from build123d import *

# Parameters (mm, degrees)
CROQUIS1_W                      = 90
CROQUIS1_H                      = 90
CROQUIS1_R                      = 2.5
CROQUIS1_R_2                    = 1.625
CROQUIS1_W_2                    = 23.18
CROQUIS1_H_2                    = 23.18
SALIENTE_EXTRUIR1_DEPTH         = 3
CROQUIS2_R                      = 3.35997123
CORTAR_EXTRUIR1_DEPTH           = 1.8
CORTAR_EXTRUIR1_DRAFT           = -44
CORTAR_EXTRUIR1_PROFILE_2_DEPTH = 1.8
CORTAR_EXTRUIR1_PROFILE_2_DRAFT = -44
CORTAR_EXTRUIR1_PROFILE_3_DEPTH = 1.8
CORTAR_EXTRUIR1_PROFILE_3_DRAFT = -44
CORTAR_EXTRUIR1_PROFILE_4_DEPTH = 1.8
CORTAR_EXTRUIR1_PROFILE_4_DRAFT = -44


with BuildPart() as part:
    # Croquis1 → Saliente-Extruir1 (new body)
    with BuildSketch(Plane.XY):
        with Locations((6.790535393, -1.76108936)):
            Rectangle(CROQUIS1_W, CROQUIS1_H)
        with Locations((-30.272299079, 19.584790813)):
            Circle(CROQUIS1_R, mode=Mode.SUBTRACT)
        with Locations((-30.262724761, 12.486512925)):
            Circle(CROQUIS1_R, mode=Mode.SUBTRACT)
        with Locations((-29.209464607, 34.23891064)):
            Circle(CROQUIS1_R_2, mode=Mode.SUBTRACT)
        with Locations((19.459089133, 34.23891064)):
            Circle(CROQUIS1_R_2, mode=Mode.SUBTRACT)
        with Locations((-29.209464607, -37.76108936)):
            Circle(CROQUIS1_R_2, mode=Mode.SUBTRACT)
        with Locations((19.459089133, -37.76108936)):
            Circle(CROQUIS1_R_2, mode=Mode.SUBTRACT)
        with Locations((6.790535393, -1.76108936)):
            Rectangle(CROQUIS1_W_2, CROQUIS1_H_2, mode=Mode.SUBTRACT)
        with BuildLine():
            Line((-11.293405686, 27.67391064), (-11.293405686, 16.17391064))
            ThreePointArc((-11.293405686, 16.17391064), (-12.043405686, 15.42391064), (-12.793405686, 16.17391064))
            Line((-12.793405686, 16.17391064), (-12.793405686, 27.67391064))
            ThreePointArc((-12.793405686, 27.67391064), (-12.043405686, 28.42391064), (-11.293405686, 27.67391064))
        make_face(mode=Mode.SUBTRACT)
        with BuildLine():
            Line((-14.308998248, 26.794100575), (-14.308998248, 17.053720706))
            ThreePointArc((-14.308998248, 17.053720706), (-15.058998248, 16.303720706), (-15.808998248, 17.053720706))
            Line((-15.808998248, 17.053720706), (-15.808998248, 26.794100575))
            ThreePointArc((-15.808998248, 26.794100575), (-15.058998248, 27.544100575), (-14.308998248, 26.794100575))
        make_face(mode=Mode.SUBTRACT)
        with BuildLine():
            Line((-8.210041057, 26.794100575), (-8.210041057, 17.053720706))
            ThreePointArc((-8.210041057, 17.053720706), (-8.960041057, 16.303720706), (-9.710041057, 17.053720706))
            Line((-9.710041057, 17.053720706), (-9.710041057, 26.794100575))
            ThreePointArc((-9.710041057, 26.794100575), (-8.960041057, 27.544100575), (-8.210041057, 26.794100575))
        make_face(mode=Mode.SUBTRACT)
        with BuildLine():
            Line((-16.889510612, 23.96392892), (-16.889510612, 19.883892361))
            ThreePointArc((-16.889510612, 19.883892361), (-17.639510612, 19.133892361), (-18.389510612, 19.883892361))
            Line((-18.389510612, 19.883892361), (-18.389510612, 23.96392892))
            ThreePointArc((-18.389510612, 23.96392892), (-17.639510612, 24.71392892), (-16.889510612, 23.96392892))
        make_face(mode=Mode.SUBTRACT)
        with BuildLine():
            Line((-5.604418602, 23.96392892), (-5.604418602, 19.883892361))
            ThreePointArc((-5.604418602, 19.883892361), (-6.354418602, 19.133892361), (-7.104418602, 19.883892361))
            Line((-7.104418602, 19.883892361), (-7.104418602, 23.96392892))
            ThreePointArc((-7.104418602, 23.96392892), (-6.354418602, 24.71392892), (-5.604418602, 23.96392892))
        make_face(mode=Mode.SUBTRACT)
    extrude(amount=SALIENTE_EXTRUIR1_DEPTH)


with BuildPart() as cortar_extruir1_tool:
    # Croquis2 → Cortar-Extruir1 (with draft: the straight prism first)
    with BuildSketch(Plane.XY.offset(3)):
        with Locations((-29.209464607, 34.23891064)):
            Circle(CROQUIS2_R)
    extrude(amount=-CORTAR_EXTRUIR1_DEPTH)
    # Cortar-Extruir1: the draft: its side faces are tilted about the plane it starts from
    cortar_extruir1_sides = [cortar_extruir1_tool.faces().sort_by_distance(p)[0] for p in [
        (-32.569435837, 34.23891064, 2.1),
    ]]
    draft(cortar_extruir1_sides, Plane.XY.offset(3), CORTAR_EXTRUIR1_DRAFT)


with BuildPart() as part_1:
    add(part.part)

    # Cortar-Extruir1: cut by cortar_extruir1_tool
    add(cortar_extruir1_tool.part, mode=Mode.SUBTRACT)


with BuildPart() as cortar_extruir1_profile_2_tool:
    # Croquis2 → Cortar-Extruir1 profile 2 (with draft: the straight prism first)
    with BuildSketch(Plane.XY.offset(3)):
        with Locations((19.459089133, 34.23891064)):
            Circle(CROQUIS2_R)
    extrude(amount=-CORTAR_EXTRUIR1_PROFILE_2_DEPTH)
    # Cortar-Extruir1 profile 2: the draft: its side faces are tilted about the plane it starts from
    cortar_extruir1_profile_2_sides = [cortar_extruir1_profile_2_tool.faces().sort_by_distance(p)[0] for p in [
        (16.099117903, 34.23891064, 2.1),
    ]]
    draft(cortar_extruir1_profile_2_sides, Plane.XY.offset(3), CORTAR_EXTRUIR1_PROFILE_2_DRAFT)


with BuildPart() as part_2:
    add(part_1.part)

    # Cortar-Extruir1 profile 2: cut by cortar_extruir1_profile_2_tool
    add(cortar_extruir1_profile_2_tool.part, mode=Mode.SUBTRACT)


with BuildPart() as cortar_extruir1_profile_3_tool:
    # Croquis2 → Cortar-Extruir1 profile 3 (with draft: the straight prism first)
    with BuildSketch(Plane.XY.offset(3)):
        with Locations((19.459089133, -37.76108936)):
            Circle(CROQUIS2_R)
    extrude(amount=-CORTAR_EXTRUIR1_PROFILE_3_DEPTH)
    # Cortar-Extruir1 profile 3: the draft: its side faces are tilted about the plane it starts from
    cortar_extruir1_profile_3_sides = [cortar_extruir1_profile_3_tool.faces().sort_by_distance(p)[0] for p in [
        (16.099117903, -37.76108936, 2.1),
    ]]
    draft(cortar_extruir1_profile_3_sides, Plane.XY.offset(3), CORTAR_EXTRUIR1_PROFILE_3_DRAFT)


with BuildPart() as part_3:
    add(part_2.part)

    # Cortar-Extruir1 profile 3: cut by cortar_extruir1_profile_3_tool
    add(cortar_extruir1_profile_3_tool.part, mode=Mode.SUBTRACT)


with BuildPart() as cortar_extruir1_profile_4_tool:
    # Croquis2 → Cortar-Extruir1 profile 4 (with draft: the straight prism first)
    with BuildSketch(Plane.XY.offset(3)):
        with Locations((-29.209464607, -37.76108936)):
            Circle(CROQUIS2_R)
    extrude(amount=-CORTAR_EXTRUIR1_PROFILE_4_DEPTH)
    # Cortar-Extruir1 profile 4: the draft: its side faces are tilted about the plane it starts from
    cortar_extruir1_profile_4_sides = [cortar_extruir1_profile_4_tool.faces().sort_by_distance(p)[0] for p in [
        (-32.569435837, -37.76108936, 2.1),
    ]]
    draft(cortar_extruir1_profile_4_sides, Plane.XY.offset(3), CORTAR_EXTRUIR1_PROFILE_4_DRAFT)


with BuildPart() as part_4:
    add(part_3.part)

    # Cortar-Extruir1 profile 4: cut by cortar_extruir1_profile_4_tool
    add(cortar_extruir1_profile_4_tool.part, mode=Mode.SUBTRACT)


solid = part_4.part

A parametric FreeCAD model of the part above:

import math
import FreeCAD as App
import Part
import Sketcher
Q = App.Units.Quantity


def faces_at(feature, points):
    """Names of the faces that lie closest to the given points."""
    faces = feature.Shape.Faces
    near = lambda p: min(range(len(faces)), key=lambda i: faces[i].distToShape(Part.Vertex(*p))[0])
    return sorted({f"Face{near(p) + 1}" for p in points})


def add_polygon(sketch, points):
    """Adds a closed chain of lines whose ends are joined by coincident constraints."""
    first, n = sketch.GeometryCount, len(points)
    for a, b in zip(points, points[1:] + points[:1]):
        sketch.addGeometry(Part.LineSegment(App.Vector(*a, 0), App.Vector(*b, 0)), False)
    for i in range(n):
        sketch.addConstraint(Sketcher.Constraint("Coincident", first + i, 2, first + (i + 1) % n, 1))

doc = App.newDocument("Part")
body = doc.addObject("PartDesign::Body", "Body")

sketch1 = body.newObject("Sketcher::SketchObject", "Sketch")
sketch1.AttachmentSupport = (doc.getObject("XY_Plane"), [""])
sketch1.MapMode = "FlatFace"
add_polygon(sketch1, [(-38.2, 43.2), (-38.2, -46.8), (51.8, -46.8), (51.8, 43.2)])
sketch1.addGeometry(Part.Circle(App.Vector(-29.2, -37.8, 0), App.Vector(0, 0, 1), 1.6), False)
sketch1.addGeometry(Part.Circle(App.Vector(19.5, -37.8, 0), App.Vector(0, 0, 1), 1.6), False)
sketch1.addGeometry(Part.Circle(App.Vector(-30.3, 12.5, 0), App.Vector(0, 0, 1), 2.5), False)
sketch1.addGeometry(Part.Circle(App.Vector(-30.3, 19.6, 0), App.Vector(0, 0, 1), 2.5), False)
sketch1.addGeometry(Part.Circle(App.Vector(-29.2, 34.2, 0), App.Vector(0, 0, 1), 1.6), False)
sketch1.addGeometry(Part.ArcOfCircle(Part.Circle(App.Vector(-17.6, 24, 0), App.Vector(0, 0, 1), 0.8), math.radians(0), math.radians(180)), False)
sketch1.addGeometry(Part.LineSegment(App.Vector(-16.9, 24, 0), App.Vector(-16.9, 19.9, 0)), False)
sketch1.addGeometry(Part.ArcOfCircle(Part.Circle(App.Vector(-17.6, 19.9, 0), App.Vector(0, 0, 1), 0.8), math.radians(180), math.radians(360)), False)
sketch1.addGeometry(Part.LineSegment(App.Vector(-18.4, 19.9, 0), App.Vector(-18.4, 24, 0)), False)
sketch1.addGeometry(Part.ArcOfCircle(Part.Circle(App.Vector(-15.1, 26.8, 0), App.Vector(0, 0, 1), 0.8), math.radians(0), math.radians(180)), False)
sketch1.addGeometry(Part.LineSegment(App.Vector(-14.3, 26.8, 0), App.Vector(-14.3, 17.1, 0)), False)
sketch1.addGeometry(Part.ArcOfCircle(Part.Circle(App.Vector(-15.1, 17.1, 0), App.Vector(0, 0, 1), 0.8), math.radians(180), math.radians(360)), False)
sketch1.addGeometry(Part.LineSegment(App.Vector(-15.8, 17.1, 0), App.Vector(-15.8, 26.8, 0)), False)
sketch1.addGeometry(Part.ArcOfCircle(Part.Circle(App.Vector(-12, 27.7, 0), App.Vector(0, 0, 1), 0.8), math.radians(0), math.radians(180)), False)
sketch1.addGeometry(Part.LineSegment(App.Vector(-11.3, 27.7, 0), App.Vector(-11.3, 16.2, 0)), False)
sketch1.addGeometry(Part.ArcOfCircle(Part.Circle(App.Vector(-12, 16.2, 0), App.Vector(0, 0, 1), 0.8), math.radians(180), math.radians(360)), False)
sketch1.addGeometry(Part.LineSegment(App.Vector(-12.8, 16.2, 0), App.Vector(-12.8, 27.7, 0)), False)
sketch1.addGeometry(Part.ArcOfCircle(Part.Circle(App.Vector(-9, 26.8, 0), App.Vector(0, 0, 1), 0.8), math.radians(0), math.radians(180)), False)
sketch1.addGeometry(Part.LineSegment(App.Vector(-8.2, 26.8, 0), App.Vector(-8.2, 17.1, 0)), False)
sketch1.addGeometry(Part.ArcOfCircle(Part.Circle(App.Vector(-9, 17.1, 0), App.Vector(0, 0, 1), 0.8), math.radians(180), math.radians(360)), False)
sketch1.addGeometry(Part.LineSegment(App.Vector(-9.7, 17.1, 0), App.Vector(-9.7, 26.8, 0)), False)
sketch1.addGeometry(Part.ArcOfCircle(Part.Circle(App.Vector(-6.4, 24, 0), App.Vector(0, 0, 1), 0.8), math.radians(0), math.radians(180)), False)
sketch1.addGeometry(Part.LineSegment(App.Vector(-5.6, 24, 0), App.Vector(-5.6, 19.9, 0)), False)
sketch1.addGeometry(Part.ArcOfCircle(Part.Circle(App.Vector(-6.4, 19.9, 0), App.Vector(0, 0, 1), 0.8), math.radians(180), math.radians(360)), False)
sketch1.addGeometry(Part.LineSegment(App.Vector(-7.1, 19.9, 0), App.Vector(-7.1, 24, 0)), False)
add_polygon(sketch1, [(18.4, -13.4), (-4.8, -13.4), (-4.8, 9.8), (18.4, 9.8)])
sketch1.addGeometry(Part.Circle(App.Vector(19.5, 34.2, 0), App.Vector(0, 0, 1), 1.6), False)
sketch1.addConstraint([
    Sketcher.Constraint("Tangent", 9, 1, 10, 1),
    Sketcher.Constraint("Tangent", 10, 2, 11, 2),
    Sketcher.Constraint("Tangent", 11, 1, 12, 1),
    Sketcher.Constraint("Tangent", 12, 2, 9, 2),
    Sketcher.Constraint("Tangent", 13, 1, 14, 1),
    Sketcher.Constraint("Tangent", 14, 2, 15, 2),
    Sketcher.Constraint("Tangent", 15, 1, 16, 1),
    Sketcher.Constraint("Tangent", 16, 2, 13, 2),
    Sketcher.Constraint("Tangent", 17, 1, 18, 1),
    Sketcher.Constraint("Tangent", 18, 2, 19, 2),
    Sketcher.Constraint("Tangent", 19, 1, 20, 1),
    Sketcher.Constraint("Tangent", 20, 2, 17, 2),
    Sketcher.Constraint("Tangent", 21, 1, 22, 1),
    Sketcher.Constraint("Tangent", 22, 2, 23, 2),
    Sketcher.Constraint("Tangent", 23, 1, 24, 1),
    Sketcher.Constraint("Tangent", 24, 2, 21, 2),
    Sketcher.Constraint("Tangent", 25, 1, 26, 1),
    Sketcher.Constraint("Tangent", 26, 2, 27, 2),
    Sketcher.Constraint("Tangent", 27, 1, 28, 1),
    Sketcher.Constraint("Tangent", 28, 2, 25, 2),
    Sketcher.Constraint("Vertical", 0),
    Sketcher.Constraint("Horizontal", 1),
    Sketcher.Constraint("Vertical", 2),
    Sketcher.Constraint("Horizontal", 3),
    Sketcher.Constraint("Vertical", 10),
    Sketcher.Constraint("Vertical", 12),
    Sketcher.Constraint("Vertical", 14),
    Sketcher.Constraint("Vertical", 16),
    Sketcher.Constraint("Vertical", 18),
    Sketcher.Constraint("Vertical", 20),
    Sketcher.Constraint("Vertical", 22),
    Sketcher.Constraint("Vertical", 24),
    Sketcher.Constraint("Vertical", 26),
    Sketcher.Constraint("Vertical", 28),
    Sketcher.Constraint("Horizontal", 29),
    Sketcher.Constraint("Vertical", 30),
    Sketcher.Constraint("Horizontal", 31),
    Sketcher.Constraint("Vertical", 32),
    Sketcher.Constraint("Equal", 4, 5),
    Sketcher.Constraint("Equal", 6, 7),
    Sketcher.Constraint("Equal", 5, 8),
    Sketcher.Constraint("Equal", 11, 13),
    Sketcher.Constraint("Equal", 15, 17),
    Sketcher.Constraint("Equal", 19, 21),
    Sketcher.Constraint("Equal", 23, 25),
    Sketcher.Constraint("Equal", 8, 33),
    Sketcher.Constraint("Horizontal", 4, 3, 5, 3),
    Sketcher.Constraint("Horizontal", 13, 3, 21, 3),
    Sketcher.Constraint("Horizontal", 15, 3, 23, 3),
    Sketcher.Constraint("Horizontal", 9, 3, 25, 3),
    Sketcher.Constraint("Horizontal", 11, 3, 27, 3),
    Sketcher.Constraint("Horizontal", 8, 3, 33, 3),
    Sketcher.Constraint("Vertical", 4, 3, 8, 3),
    Sketcher.Constraint("Vertical", 5, 3, 33, 3),
    Sketcher.Constraint("Equal", 3, 0),
    Sketcher.Constraint("Equal", 31, 30),
    Sketcher.Constraint("Diameter", 6, Q("5 mm")),
    Sketcher.Constraint("Diameter", 4, Q("3.25 mm")),
    Sketcher.Constraint("DistanceX", 1, 1, 1, 2, Q("90 mm")),
    Sketcher.Constraint("Radius", 9, Q("0.75 mm")),
    Sketcher.Constraint("DistanceY", 18, 2, 18, 1, Q("11.5 mm")),
    Sketcher.Constraint("DistanceY", 4, 3, 8, 3, Q("72 mm")),
    Sketcher.Constraint("DistanceX", 0, 2, 4, 3, Q("9 mm")),
    Sketcher.Constraint("DistanceY", 0, 2, 4, 3, Q("9 mm")),
    Sketcher.Constraint("DistanceX", 29, 2, 29, 1, Q("23.18 mm")),
    Sketcher.Constraint("DistanceY", 31, 2, 33, 3, Q("24.41 mm")),
    Sketcher.Constraint("DistanceX", 13, 3, -1, 1, Q("15.058998 mm")),
    Sketcher.Constraint("DistanceY", 17, 3, 8, 3, Q("6.565 mm")),
    Sketcher.Constraint("DistanceY", 14, 2, 14, 1, Q("9.74038 mm")),
    Sketcher.Constraint("DistanceX", 7, 3, -1, 1, Q("30.272299 mm")),
    Sketcher.Constraint("DistanceY", -1, 1, 13, 3, Q("26.794101 mm")),
    Sketcher.Constraint("DistanceX", 9, 3, 5, 3, Q("37.0986 mm")),
    Sketcher.Constraint("DistanceY", 7, 3, 11, 3, Q("0.299102 mm")),
    Sketcher.Constraint("DistanceY", 10, 2, 10, 1, Q("4.080037 mm")),
    Sketcher.Constraint("DistanceY", 4, 3, -1, 1, Q("37.761089 mm")),
    Sketcher.Constraint("DistanceX", -1, 1, 5, 3, Q("19.459089 mm")),
    Sketcher.Constraint("DistanceY", -1, 1, 7, 3, Q("19.584791 mm")),
    Sketcher.Constraint("DistanceX", 21, 3, -1, 1, Q("8.960041 mm")),
    Sketcher.Constraint("DistanceX", 25, 3, -1, 1, Q("6.354419 mm")),
    Sketcher.Constraint("DistanceX", 6, 3, 4, 3, Q("1.05326 mm")),
    Sketcher.Constraint("DistanceY", 6, 3, 11, 3, Q("7.397379 mm")),
    Sketcher.Constraint("DistanceX", 8, 3, 17, 3, Q("17.166059 mm")),
    Sketcher.Constraint("DistanceX", 18, 2, 29, 2, Q("6.493941 mm")),
    Sketcher.Constraint("DistanceX", 4, 3, -1, 1, Q("29.209465 mm")),
])
pad1 = body.newObject("PartDesign::Pad", "Pad")
pad1.Profile = sketch1
pad1.Length = 3
body2 = doc.addObject("PartDesign::Body", "Body001")

sketch2 = body2.newObject("Sketcher::SketchObject", "Sketch001")
sketch2.AttachmentSupport = (doc.getObject("XY_Plane001"), [""])
sketch2.MapMode = "FlatFace"
sketch2.AttachmentOffset = App.Placement(App.Vector(0, 0, 3), App.Rotation())
sketch2.addGeometry(Part.Circle(App.Vector(-29.2, 34.2, 0), App.Vector(0, 0, 1), 3.4), False)
sketch2.addConstraint([
    Sketcher.Constraint("Diameter", 0, Q("6.719942 mm")),
    Sketcher.Constraint("DistanceY", -1, 1, 0, 3, Q("34.238911 mm")),
    Sketcher.Constraint("DistanceX", 0, 3, -1, 1, Q("29.209465 mm")),
])
pad2 = body2.newObject("PartDesign::Pad", "Pad001")
pad2.Profile = sketch2
pad2.Length = 1.8
pad2.Reversed = True
doc.recompute()

datumplane = body2.newObject("PartDesign::Plane", "DatumPlane")
datumplane.AttachmentSupport = (doc.getObject("XY_Plane001"), [""])
datumplane.MapMode = "FlatFace"
datumplane.AttachmentOffset = App.Placement(App.Vector(0, 0, 3), App.Rotation())
draft = body2.newObject("PartDesign::Draft", "Draft")
draft.Base = (pad2, faces_at(pad2, [(-32.569, 34.239, 2.1)]))
draft.NeutralPlane = (datumplane, [""])
draft.Angle = 44
draft.Reversed = True
doc.recompute()

boolean = body.newObject("PartDesign::Boolean", "Boolean")
boolean.Type = "Cut"
boolean.addObjects([body2])
body3 = doc.addObject("PartDesign::Body", "Body002")

sketch3 = body3.newObject("Sketcher::SketchObject", "Sketch002")
sketch3.AttachmentSupport = (doc.getObject("XY_Plane002"), [""])
sketch3.MapMode = "FlatFace"
sketch3.AttachmentOffset = App.Placement(App.Vector(0, 0, 3), App.Rotation())
sketch3.addGeometry(Part.Circle(App.Vector(19.5, 34.2, 0), App.Vector(0, 0, 1), 3.4), False)
sketch3.addConstraint([
    Sketcher.Constraint("Diameter", 0, Q("6.719942 mm")),
    Sketcher.Constraint("DistanceX", -1, 1, 0, 3, Q("19.459089 mm")),
    Sketcher.Constraint("DistanceY", -1, 1, 0, 3, Q("34.238911 mm")),
])
pad3 = body3.newObject("PartDesign::Pad", "Pad002")
pad3.Profile = sketch3
pad3.Length = 1.8
pad3.Reversed = True
doc.recompute()

datumplane2 = body3.newObject("PartDesign::Plane", "DatumPlane001")
datumplane2.AttachmentSupport = (doc.getObject("XY_Plane002"), [""])
datumplane2.MapMode = "FlatFace"
datumplane2.AttachmentOffset = App.Placement(App.Vector(0, 0, 3), App.Rotation())
draft2 = body3.newObject("PartDesign::Draft", "Draft001")
draft2.Base = (pad3, faces_at(pad3, [(16.099, 34.239, 2.1)]))
draft2.NeutralPlane = (datumplane2, [""])
draft2.Angle = 44
draft2.Reversed = True
doc.recompute()

boolean2 = body.newObject("PartDesign::Boolean", "Boolean001")
boolean2.Type = "Cut"
boolean2.addObjects([body3])
body4 = doc.addObject("PartDesign::Body", "Body003")

sketch4 = body4.newObject("Sketcher::SketchObject", "Sketch003")
sketch4.AttachmentSupport = (doc.getObject("XY_Plane003"), [""])
sketch4.MapMode = "FlatFace"
sketch4.AttachmentOffset = App.Placement(App.Vector(0, 0, 3), App.Rotation())
sketch4.addGeometry(Part.Circle(App.Vector(19.5, -37.8, 0), App.Vector(0, 0, 1), 3.4), False)
sketch4.addConstraint([
    Sketcher.Constraint("Diameter", 0, Q("6.719942 mm")),
    Sketcher.Constraint("DistanceX", -1, 1, 0, 3, Q("19.459089 mm")),
    Sketcher.Constraint("DistanceY", 0, 3, -1, 1, Q("37.761089 mm")),
])
pad4 = body4.newObject("PartDesign::Pad", "Pad003")
pad4.Profile = sketch4
pad4.Length = 1.8
pad4.Reversed = True
doc.recompute()

datumplane3 = body4.newObject("PartDesign::Plane", "DatumPlane002")
datumplane3.AttachmentSupport = (doc.getObject("XY_Plane003"), [""])
datumplane3.MapMode = "FlatFace"
datumplane3.AttachmentOffset = App.Placement(App.Vector(0, 0, 3), App.Rotation())
draft3 = body4.newObject("PartDesign::Draft", "Draft002")
draft3.Base = (pad4, faces_at(pad4, [(16.099, -37.761, 2.1)]))
draft3.NeutralPlane = (datumplane3, [""])
draft3.Angle = 44
draft3.Reversed = True
doc.recompute()

boolean3 = body.newObject("PartDesign::Boolean", "Boolean002")
boolean3.Type = "Cut"
boolean3.addObjects([body4])
body5 = doc.addObject("PartDesign::Body", "Body004")

sketch5 = body5.newObject("Sketcher::SketchObject", "Sketch004")
sketch5.AttachmentSupport = (doc.getObject("XY_Plane004"), [""])
sketch5.MapMode = "FlatFace"
sketch5.AttachmentOffset = App.Placement(App.Vector(0, 0, 3), App.Rotation())
sketch5.addGeometry(Part.Circle(App.Vector(-29.2, -37.8, 0), App.Vector(0, 0, 1), 3.4), False)
sketch5.addConstraint([
    Sketcher.Constraint("Diameter", 0, Q("6.719942 mm")),
    Sketcher.Constraint("DistanceY", 0, 3, -1, 1, Q("37.761089 mm")),
    Sketcher.Constraint("DistanceX", 0, 3, -1, 1, Q("29.209465 mm")),
])
pad5 = body5.newObject("PartDesign::Pad", "Pad004")
pad5.Profile = sketch5
pad5.Length = 1.8
pad5.Reversed = True
doc.recompute()

datumplane4 = body5.newObject("PartDesign::Plane", "DatumPlane003")
datumplane4.AttachmentSupport = (doc.getObject("XY_Plane004"), [""])
datumplane4.MapMode = "FlatFace"
datumplane4.AttachmentOffset = App.Placement(App.Vector(0, 0, 3), App.Rotation())
draft4 = body5.newObject("PartDesign::Draft", "Draft003")
draft4.Base = (pad5, faces_at(pad5, [(-32.569, -37.761, 2.1)]))
draft4.NeutralPlane = (datumplane4, [""])
draft4.Angle = 44
draft4.Reversed = True
doc.recompute()

boolean4 = body.newObject("PartDesign::Boolean", "Boolean003")
boolean4.Type = "Cut"
boolean4.addObjects([body5])

doc.recompute()
